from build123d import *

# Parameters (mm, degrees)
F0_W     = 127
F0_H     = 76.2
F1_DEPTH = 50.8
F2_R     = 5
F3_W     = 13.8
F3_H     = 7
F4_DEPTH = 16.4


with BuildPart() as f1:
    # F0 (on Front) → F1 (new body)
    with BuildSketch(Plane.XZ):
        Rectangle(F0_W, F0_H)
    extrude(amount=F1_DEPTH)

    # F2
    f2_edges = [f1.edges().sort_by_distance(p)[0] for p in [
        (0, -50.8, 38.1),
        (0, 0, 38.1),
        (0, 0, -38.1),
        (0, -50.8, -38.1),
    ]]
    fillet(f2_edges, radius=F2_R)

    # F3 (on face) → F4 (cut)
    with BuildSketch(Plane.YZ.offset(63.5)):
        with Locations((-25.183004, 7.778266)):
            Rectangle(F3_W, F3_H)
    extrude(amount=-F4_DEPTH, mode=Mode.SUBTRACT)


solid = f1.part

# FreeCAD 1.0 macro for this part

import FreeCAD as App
import Part
import Sketcher

V = App.Vector
Q = App.Units.Quantity


def edges_at(feature, points):
    """Names of the edges that pass closest to the given points."""
    edges = feature.Shape.Edges
    near = lambda p: min(range(len(edges)), key=lambda i: edges[i].distToShape(Part.Vertex(*p))[0])
    return sorted({f"Edge{near(p) + 1}" for p in points})


def add_polygon(sketch, points):
    """Adds a closed chain of lines whose ends are joined by coincident constraints."""
    first, n = sketch.GeometryCount, len(points)
    for a, b in zip(points, points[1:] + points[:1]):
        sketch.addGeometry(Part.LineSegment(App.Vector(*a, 0), App.Vector(*b, 0)), False)
    for i in range(n):
        sketch.addConstraint(Sketcher.Constraint("Coincident", first + i, 2, first + (i + 1) % n, 1))

doc = App.newDocument("Part")
body = doc.addObject("PartDesign::Body", "Body")

# Sketch on XZ plane
sketch1 = body.newObject("Sketcher::SketchObject", "Sketch")
sketch1.AttachmentSupport = (doc.getObject("XZ_Plane"), [""])
sketch1.MapMode = "FlatFace"
add_polygon(sketch1, [(-64, 38), (-64, -38), (64, -38), (64, 38)])  # lines 0-3
sketch1.addConstraint(Sketcher.Constraint("Vertical", 0))
sketch1.addConstraint(Sketcher.Constraint("Horizontal", 1))
sketch1.addConstraint(Sketcher.Constraint("Vertical", 2))
sketch1.addConstraint(Sketcher.Constraint("Horizontal", 3))
sketch1.addConstraint(Sketcher.Constraint("Symmetric", 0, 2, 2, 2, -1, 1))
sketch1.addConstraint(Sketcher.Constraint("DistanceX", 1, 1, 1, 2, Q("127 mm")))
sketch1.addConstraint(Sketcher.Constraint("DistanceY", 0, 2, 0, 1, Q("76.2 mm")))
pad1 = body.newObject("PartDesign::Pad", "Pad")
pad1.Profile = sketch1
pad1.Length = 50.8
doc.recompute()

fillet = body.newObject("PartDesign::Fillet", "Fillet")
fillet.Base = (pad1, edges_at(pad1, [
    (0, -50.8, 38.1),
    (0, 0, 38.1),
    (0, 0, -38.1),
    (0, -50.8, -38.1),
]))
fillet.Radius = 5

# Sketch on YZ plane
sketch2 = body.newObject("Sketcher::SketchObject", "Sketch001")
sketch2.AttachmentSupport = (doc.getObject("YZ_Plane"), [""])
sketch2.MapMode = "FlatFace"
sketch2.AttachmentOffset = App.Placement(V(0, 0, 63.5), App.Rotation())
add_polygon(sketch2, [(-32, 11), (-32, 4), (-18, 4), (-18, 11)])  # lines 0-3
sketch2.addConstraint(Sketcher.Constraint("Vertical", 0))
sketch2.addConstraint(Sketcher.Constraint("Horizontal", 1))
sketch2.addConstraint(Sketcher.Constraint("Vertical", 2))
sketch2.addConstraint(Sketcher.Constraint("Horizontal", 3))
sketch2.addConstraint(Sketcher.Constraint("DistanceY", 0, 2, 0, 1, Q("7 mm")))
sketch2.addConstraint(Sketcher.Constraint("DistanceX", 1, 1, 1, 2, Q("13.8 mm")))
sketch2.addConstraint(Sketcher.Constraint("DistanceX", 0, 2, -1, 1, Q("32.083004 mm")))
sketch2.addConstraint(Sketcher.Constraint("DistanceY", -1, 1, 0, 2, Q("4.278266 mm")))
pocket1 = body.newObject("PartDesign::Pocket", "Pocket")
pocket1.Profile = sketch2
pocket1.Length = 16.4

doc.recompute()
